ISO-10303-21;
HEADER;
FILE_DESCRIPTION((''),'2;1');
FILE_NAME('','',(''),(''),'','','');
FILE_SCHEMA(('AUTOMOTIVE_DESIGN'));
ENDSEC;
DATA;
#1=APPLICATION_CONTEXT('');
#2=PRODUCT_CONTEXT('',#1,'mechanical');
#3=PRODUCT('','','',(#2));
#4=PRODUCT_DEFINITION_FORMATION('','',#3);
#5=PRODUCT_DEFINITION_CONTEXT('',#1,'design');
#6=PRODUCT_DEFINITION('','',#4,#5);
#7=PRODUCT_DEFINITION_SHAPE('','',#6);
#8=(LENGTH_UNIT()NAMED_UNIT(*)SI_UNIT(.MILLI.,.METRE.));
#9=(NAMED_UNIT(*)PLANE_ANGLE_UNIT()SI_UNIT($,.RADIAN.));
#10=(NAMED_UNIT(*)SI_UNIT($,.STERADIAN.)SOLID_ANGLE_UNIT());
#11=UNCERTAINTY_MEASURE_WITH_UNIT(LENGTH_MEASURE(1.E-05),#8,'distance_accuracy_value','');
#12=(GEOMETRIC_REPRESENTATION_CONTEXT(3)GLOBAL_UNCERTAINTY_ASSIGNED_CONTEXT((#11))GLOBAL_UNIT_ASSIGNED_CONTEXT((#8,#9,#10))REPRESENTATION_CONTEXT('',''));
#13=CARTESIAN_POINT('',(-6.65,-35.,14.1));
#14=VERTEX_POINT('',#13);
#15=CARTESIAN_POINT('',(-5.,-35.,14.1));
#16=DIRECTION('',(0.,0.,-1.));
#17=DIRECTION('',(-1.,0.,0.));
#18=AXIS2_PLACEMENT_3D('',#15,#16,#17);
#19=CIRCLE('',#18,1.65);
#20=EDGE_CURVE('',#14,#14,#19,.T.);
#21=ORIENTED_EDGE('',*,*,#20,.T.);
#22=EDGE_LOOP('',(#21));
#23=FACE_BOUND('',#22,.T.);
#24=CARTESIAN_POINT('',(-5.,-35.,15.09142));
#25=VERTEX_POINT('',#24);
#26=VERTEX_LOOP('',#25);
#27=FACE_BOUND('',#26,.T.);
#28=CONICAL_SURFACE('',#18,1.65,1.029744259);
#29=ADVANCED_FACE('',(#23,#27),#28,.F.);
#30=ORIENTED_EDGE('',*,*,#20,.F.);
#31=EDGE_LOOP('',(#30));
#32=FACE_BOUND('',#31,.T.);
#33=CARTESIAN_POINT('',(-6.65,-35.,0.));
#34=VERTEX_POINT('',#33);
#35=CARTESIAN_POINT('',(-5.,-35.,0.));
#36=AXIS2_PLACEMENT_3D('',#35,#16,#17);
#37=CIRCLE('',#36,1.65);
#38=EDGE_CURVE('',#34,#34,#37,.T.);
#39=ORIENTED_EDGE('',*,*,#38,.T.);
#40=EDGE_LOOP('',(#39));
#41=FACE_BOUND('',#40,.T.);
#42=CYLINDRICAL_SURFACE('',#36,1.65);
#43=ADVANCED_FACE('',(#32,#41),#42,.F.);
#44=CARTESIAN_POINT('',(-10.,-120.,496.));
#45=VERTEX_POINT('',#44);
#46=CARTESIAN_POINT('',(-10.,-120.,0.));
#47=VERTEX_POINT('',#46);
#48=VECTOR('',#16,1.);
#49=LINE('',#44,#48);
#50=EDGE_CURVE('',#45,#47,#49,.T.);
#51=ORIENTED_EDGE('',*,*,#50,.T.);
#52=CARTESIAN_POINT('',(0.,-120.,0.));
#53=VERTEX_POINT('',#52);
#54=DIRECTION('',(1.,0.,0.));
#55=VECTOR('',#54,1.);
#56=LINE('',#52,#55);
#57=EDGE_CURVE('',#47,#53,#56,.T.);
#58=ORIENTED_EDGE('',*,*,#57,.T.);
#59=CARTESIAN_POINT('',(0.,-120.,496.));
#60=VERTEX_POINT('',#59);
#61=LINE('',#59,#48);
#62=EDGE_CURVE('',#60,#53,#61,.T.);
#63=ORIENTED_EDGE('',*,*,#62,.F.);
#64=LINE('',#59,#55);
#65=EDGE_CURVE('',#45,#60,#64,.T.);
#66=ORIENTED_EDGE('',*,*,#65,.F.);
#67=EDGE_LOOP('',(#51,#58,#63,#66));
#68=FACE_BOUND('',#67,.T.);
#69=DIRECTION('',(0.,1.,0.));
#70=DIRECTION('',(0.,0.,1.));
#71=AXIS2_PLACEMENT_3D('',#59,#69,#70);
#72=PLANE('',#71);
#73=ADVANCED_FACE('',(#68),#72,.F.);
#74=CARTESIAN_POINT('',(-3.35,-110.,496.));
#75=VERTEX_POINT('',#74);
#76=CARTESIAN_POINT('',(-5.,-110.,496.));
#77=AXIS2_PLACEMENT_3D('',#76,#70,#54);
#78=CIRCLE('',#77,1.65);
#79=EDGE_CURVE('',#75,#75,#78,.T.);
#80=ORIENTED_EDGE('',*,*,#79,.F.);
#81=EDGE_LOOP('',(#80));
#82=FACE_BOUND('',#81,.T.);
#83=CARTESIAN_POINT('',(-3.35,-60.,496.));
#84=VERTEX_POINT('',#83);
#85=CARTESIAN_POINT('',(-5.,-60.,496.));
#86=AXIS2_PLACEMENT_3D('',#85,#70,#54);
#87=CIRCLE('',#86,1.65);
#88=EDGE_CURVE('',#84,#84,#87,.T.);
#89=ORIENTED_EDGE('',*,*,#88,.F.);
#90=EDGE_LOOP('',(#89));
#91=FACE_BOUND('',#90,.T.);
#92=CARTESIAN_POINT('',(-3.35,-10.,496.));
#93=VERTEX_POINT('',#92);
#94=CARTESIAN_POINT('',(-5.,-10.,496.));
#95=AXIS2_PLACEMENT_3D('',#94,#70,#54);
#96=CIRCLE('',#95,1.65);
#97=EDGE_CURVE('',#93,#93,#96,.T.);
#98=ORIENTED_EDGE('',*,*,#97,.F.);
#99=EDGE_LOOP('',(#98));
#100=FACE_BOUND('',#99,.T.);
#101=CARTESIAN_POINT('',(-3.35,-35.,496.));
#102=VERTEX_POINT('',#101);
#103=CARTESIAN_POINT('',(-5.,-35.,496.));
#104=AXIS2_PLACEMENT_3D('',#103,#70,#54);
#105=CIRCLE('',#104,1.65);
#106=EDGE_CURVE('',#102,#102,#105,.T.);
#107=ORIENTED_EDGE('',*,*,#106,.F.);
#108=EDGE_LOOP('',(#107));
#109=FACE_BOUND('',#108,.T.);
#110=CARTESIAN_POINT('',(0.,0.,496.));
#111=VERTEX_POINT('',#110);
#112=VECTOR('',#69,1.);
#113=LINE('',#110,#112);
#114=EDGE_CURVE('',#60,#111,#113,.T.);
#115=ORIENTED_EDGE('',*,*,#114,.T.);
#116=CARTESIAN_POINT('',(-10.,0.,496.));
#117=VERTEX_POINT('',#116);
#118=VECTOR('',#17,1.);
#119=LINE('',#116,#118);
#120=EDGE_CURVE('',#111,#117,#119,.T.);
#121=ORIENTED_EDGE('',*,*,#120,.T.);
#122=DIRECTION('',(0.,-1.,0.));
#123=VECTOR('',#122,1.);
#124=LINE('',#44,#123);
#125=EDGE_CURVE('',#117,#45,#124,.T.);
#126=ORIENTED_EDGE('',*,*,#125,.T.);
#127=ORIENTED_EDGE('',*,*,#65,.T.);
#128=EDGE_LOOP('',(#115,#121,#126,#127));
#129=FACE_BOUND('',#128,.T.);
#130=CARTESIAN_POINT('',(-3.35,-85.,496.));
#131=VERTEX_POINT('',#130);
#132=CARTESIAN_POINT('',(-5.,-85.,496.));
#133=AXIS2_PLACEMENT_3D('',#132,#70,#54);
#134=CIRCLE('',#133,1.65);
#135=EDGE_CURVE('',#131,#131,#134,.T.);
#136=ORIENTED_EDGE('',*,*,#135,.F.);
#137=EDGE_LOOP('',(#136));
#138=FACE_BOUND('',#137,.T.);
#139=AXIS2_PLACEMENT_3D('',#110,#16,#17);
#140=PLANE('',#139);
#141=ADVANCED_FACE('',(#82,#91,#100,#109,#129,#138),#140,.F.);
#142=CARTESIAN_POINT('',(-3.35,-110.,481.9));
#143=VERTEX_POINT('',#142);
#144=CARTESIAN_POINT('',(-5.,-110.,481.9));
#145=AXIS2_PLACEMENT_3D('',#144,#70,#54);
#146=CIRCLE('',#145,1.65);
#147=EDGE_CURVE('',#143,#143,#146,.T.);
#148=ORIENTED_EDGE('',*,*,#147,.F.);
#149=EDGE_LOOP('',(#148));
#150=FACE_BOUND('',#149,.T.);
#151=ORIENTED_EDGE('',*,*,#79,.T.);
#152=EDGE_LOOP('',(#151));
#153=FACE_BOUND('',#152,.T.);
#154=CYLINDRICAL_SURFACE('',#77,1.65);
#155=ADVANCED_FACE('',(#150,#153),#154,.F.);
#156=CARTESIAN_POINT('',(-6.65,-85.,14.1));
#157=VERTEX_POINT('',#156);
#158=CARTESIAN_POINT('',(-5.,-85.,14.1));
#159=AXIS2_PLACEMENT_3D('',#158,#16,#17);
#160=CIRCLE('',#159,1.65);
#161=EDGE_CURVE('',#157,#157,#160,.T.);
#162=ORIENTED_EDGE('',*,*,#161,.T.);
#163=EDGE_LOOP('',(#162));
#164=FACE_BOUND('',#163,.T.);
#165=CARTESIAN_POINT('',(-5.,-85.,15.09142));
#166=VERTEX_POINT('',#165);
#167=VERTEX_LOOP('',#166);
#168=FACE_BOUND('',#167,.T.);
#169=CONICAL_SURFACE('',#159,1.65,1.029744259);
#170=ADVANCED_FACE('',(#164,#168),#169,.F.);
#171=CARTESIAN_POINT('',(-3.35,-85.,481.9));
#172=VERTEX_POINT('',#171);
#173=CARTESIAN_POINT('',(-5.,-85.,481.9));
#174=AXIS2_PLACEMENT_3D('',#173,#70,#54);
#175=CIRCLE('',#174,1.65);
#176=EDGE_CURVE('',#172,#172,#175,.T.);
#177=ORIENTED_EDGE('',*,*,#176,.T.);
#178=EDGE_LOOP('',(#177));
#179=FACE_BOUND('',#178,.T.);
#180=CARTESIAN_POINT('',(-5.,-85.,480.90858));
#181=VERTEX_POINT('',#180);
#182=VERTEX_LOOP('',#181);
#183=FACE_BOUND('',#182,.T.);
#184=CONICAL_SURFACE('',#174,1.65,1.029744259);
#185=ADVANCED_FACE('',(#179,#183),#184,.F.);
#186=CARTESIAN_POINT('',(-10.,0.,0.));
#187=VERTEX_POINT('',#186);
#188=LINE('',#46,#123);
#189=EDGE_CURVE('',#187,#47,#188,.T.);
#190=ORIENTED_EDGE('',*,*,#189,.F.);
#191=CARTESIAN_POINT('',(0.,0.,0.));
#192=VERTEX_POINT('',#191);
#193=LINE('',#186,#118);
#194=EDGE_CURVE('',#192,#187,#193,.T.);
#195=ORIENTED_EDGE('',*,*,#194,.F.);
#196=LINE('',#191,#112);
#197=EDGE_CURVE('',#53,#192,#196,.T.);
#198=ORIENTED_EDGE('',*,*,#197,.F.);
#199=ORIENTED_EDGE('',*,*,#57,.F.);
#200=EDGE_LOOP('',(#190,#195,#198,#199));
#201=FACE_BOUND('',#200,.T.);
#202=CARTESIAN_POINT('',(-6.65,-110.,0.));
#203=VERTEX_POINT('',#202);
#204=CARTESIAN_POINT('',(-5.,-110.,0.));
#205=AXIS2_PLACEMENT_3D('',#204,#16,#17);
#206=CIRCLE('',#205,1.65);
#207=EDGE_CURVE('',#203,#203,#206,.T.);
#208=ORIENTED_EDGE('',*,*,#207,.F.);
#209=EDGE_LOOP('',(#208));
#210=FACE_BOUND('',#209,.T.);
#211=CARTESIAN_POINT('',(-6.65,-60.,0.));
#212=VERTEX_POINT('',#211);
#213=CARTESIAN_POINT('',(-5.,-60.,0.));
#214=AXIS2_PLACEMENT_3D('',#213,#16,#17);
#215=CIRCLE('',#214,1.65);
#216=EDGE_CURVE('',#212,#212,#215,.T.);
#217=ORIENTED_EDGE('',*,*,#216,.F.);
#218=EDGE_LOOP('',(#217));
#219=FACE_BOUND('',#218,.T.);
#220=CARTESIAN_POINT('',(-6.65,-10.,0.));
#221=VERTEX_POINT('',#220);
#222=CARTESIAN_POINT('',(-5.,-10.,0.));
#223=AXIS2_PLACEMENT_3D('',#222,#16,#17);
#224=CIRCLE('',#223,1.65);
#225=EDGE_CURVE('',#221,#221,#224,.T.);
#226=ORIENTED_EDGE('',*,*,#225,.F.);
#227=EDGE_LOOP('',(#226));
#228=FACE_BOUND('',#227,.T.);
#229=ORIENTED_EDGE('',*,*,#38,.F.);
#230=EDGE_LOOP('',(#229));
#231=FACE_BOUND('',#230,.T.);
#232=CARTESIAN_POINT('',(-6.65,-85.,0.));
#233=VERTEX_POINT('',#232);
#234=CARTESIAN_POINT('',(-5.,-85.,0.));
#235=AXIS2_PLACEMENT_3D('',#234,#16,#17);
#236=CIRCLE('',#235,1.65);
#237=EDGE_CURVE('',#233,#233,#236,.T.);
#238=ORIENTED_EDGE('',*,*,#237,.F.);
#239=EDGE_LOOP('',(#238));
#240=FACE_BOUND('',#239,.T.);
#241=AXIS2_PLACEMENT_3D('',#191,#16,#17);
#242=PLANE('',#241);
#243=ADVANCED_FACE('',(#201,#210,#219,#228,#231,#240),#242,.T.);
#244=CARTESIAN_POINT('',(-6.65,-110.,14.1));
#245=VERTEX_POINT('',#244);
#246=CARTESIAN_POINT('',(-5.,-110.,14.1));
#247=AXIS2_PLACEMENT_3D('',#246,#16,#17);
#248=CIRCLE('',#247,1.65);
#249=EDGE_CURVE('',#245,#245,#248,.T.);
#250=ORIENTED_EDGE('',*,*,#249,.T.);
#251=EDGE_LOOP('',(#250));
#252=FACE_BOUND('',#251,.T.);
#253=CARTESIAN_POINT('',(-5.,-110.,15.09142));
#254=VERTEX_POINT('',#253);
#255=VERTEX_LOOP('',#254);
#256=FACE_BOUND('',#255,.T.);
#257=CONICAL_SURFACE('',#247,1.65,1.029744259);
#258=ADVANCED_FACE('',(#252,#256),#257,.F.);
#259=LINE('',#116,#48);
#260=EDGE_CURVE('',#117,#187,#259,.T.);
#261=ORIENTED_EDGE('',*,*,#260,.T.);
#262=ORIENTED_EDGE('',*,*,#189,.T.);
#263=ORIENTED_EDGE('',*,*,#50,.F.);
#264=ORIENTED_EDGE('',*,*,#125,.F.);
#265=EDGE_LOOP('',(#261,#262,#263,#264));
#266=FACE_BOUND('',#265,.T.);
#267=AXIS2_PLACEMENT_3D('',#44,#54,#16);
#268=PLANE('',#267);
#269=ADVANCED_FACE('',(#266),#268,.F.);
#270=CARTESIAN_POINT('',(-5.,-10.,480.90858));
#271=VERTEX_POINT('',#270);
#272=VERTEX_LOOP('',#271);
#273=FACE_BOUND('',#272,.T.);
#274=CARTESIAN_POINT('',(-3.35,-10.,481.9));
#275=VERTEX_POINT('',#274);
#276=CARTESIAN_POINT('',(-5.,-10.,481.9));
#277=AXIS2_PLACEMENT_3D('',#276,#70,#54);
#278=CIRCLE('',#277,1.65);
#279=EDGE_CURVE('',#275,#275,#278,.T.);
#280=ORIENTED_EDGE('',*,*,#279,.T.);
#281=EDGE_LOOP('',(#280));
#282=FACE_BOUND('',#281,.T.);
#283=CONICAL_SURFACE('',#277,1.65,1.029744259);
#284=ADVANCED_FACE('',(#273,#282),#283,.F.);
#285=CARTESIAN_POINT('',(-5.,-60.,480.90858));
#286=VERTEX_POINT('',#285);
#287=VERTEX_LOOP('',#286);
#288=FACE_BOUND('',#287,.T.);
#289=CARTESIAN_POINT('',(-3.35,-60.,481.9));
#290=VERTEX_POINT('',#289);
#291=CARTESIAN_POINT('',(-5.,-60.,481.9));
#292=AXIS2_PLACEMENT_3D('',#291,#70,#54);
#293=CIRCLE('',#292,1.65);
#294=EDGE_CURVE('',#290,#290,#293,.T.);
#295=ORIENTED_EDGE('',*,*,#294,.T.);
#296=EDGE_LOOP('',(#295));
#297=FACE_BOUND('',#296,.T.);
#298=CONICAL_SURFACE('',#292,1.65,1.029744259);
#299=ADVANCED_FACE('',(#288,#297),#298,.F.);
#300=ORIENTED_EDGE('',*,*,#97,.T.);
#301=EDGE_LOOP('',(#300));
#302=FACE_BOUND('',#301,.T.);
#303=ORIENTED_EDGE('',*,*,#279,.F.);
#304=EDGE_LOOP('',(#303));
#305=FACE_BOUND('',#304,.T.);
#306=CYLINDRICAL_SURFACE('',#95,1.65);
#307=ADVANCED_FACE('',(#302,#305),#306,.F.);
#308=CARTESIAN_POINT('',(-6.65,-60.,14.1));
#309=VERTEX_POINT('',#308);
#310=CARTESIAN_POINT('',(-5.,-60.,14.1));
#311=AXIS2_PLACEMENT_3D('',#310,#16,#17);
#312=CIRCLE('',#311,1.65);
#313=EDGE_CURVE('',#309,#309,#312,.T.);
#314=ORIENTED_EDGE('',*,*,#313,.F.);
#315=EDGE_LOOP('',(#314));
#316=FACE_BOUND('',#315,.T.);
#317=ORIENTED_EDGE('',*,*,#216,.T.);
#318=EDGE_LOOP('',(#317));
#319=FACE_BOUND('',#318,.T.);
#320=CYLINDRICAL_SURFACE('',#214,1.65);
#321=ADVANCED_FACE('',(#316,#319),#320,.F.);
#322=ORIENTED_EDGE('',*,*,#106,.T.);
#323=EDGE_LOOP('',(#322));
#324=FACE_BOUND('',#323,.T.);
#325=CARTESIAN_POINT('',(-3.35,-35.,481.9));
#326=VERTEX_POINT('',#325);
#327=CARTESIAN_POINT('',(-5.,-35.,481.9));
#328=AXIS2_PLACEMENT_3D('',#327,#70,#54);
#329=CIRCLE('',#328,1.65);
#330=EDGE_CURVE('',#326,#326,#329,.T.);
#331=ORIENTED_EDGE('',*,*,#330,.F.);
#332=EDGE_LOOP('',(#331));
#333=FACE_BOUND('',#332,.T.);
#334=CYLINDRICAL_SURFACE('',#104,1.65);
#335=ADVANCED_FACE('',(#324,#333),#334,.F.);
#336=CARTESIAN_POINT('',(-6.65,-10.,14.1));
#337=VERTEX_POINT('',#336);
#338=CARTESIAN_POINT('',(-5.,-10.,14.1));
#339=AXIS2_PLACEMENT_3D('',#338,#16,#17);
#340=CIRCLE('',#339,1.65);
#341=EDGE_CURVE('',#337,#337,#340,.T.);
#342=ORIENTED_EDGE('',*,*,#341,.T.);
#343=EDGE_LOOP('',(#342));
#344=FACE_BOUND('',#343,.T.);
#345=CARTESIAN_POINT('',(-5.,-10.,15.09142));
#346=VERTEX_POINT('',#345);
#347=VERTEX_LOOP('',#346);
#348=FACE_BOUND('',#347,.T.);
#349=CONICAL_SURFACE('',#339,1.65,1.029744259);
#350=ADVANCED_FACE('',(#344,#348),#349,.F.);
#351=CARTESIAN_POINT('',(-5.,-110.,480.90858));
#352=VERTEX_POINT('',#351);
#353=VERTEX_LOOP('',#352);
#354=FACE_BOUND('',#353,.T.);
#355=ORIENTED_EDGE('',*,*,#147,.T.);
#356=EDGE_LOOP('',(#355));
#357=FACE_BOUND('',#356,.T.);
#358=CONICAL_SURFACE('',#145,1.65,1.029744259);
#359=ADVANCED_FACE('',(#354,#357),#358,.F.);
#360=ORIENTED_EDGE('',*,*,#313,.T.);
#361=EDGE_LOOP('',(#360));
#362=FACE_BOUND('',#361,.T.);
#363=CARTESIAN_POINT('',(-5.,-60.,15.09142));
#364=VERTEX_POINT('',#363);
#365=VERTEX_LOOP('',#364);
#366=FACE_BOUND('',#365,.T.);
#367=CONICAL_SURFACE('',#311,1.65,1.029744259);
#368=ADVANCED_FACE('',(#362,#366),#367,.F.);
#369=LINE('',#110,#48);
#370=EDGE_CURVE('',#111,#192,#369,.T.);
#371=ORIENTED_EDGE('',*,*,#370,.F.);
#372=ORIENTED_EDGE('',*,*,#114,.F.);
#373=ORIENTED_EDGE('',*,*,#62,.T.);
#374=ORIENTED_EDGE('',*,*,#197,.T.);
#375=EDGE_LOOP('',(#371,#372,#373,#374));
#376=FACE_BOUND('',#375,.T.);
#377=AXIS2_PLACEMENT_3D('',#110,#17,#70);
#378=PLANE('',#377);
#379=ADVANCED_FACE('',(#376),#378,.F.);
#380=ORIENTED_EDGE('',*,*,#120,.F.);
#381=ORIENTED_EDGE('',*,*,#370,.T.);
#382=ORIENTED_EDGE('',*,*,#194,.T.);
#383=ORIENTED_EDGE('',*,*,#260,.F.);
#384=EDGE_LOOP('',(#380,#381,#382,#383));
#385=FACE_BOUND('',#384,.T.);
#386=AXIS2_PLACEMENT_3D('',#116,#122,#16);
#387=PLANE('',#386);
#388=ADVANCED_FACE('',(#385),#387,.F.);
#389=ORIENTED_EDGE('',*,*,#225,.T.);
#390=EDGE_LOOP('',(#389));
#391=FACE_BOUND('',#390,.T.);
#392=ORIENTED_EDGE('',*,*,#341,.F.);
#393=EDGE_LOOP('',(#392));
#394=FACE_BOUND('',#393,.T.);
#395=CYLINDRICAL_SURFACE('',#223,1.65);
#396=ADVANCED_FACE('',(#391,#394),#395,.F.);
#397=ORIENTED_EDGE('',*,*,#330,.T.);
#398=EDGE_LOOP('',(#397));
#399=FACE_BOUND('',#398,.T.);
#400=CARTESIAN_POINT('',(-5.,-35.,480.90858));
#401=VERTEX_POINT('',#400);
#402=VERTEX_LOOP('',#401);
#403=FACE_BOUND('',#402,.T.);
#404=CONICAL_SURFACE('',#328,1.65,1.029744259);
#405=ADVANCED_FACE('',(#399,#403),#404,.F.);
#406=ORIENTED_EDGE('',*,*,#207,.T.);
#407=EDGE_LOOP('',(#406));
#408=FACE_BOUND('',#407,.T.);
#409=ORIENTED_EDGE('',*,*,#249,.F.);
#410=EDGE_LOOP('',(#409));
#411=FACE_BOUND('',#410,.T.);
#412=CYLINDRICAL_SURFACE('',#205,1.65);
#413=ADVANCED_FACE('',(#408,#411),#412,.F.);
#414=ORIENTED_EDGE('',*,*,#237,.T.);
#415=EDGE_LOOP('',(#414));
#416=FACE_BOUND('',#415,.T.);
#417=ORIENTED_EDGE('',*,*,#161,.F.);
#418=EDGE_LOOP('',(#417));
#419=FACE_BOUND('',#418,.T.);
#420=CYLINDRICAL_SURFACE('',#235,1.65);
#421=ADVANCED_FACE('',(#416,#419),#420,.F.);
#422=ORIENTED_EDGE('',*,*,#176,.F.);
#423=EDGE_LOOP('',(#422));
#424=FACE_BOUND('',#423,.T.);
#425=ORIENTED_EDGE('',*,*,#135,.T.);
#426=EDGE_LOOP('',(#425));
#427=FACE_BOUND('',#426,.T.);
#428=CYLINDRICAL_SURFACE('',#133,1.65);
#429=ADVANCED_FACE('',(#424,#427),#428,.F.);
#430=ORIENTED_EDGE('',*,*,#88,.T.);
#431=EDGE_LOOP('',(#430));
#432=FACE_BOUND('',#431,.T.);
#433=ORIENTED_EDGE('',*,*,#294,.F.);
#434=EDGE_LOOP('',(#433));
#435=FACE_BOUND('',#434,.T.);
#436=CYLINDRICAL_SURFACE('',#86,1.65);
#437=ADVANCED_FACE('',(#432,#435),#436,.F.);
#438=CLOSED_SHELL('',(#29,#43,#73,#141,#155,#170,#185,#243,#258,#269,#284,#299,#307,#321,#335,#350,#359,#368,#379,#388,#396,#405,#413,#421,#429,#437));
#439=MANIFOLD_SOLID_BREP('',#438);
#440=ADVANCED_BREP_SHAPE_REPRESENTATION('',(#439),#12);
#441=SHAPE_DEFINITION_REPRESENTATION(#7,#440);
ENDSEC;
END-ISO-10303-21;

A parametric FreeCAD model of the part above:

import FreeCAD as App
import Part
import Sketcher
Q = App.Units.Quantity


def add_polygon(sketch, points):
    """Adds a closed chain of lines whose ends are joined by coincident constraints."""
    first, n = sketch.GeometryCount, len(points)
    for a, b in zip(points, points[1:] + points[:1]):
        sketch.addGeometry(Part.LineSegment(App.Vector(*a, 0), App.Vector(*b, 0)), False)
    for i in range(n):
        sketch.addConstraint(Sketcher.Constraint("Coincident", first + i, 2, first + (i + 1) % n, 1))

doc = App.newDocument("Part")
body = doc.addObject("PartDesign::Body", "Body")

# Sketch on XY plane
sketch1 = body.newObject("Sketcher::SketchObject", "Sketch")
sketch1.AttachmentSupport = (doc.getObject("XY_Plane"), [""])
sketch1.MapMode = "FlatFace"
add_polygon(sketch1, [(-10, 0), (-10, -120), (0, -120), (0, 0)])  # lines 0-3
sketch1.addConstraint([
    Sketcher.Constraint("Vertical", 0),
    Sketcher.Constraint("Horizontal", 1),
    Sketcher.Constraint("Vertical", 2),
    Sketcher.Constraint("Horizontal", 3),
    Sketcher.Constraint("Coincident", 2, 2, -1, 1),
    Sketcher.Constraint("DistanceX", 1, 1, 1, 2, Q("10 mm")),
    Sketcher.Constraint("DistanceY", 0, 2, 0, 1, Q("120 mm")),
])
pad1 = body.newObject("PartDesign::Pad", "Pad")
pad1.Profile = sketch1
pad1.Length = 496

# Sketch on XY plane
sketch2 = body.newObject("Sketcher::SketchObject", "Sketch001")
sketch2.AttachmentSupport = (doc.getObject("XY_Plane"), [""])
sketch2.MapMode = "FlatFace"
sketch2.AttachmentOffset = App.Placement(App.Vector(0, 0, 496), App.Rotation())
sketch2.addGeometry([
    Part.Circle(App.Vector(-5, -10, 0), App.Vector(0, 0, 1), 1.6),  # 0
    Part.Circle(App.Vector(-5, -35, 0), App.Vector(0, 0, 1), 1.6),  # 1
    Part.Circle(App.Vector(-5, -60, 0), App.Vector(0, 0, 1), 1.6),  # 2
    Part.Circle(App.Vector(-5, -85, 0), App.Vector(0, 0, 1), 1.6),  # 3
    Part.Circle(App.Vector(-5, -110, 0), App.Vector(0, 0, 1), 1.6),  # 4
], False)
sketch2.addConstraint([
    Sketcher.Constraint("Equal", 0, 1),
    Sketcher.Constraint("Equal", 1, 2),
    Sketcher.Constraint("Equal", 2, 3),
    Sketcher.Constraint("Equal", 3, 4),
    Sketcher.Constraint("Vertical", 0, 3, 1, 3),
    Sketcher.Constraint("Vertical", 1, 3, 2, 3),
    Sketcher.Constraint("Vertical", 2, 3, 3, 3),
    Sketcher.Constraint("Vertical", 3, 3, 4, 3),
    Sketcher.Constraint("Diameter", 0, Q("3.3 mm")),
    Sketcher.Constraint("DistanceX", 0, 3, -1, 1, Q("5 mm")),
    Sketcher.Constraint("DistanceY", 0, 3, -1, 1, Q("10 mm")),
    Sketcher.Constraint("DistanceY", 1, 3, -1, 1, Q("35 mm")),
    Sketcher.Constraint("DistanceY", 2, 3, -1, 1, Q("60 mm")),
    Sketcher.Constraint("DistanceY", 3, 3, -1, 1, Q("85 mm")),
    Sketcher.Constraint("DistanceY", 4, 3, -1, 1, Q("110 mm")),
])
doc.recompute()
hole = body.newObject("PartDesign::Hole", "Hole")
hole.Profile = sketch2
hole.ThreadType = "None"
hole.Diameter = 3.3
hole.DepthType = "Dimension"
hole.Depth = 14.1
hole.DrillPoint = "Angled"
hole.DrillPointAngle = 118

# Sketch on XY plane
sketch3 = body.newObject("Sketcher::SketchObject", "Sketch002")
sketch3.AttachmentSupport = (doc.getObject("XY_Plane"), [""])
sketch3.MapMode = "FlatFace"
sketch3.addGeometry([
    Part.Circle(App.Vector(-5, -10, 0), App.Vector(0, 0, 1), 1.6),  # 0
    Part.Circle(App.Vector(-5, -35, 0), App.Vector(0, 0, 1), 1.6),  # 1
    Part.Circle(App.Vector(-5, -60, 0), App.Vector(0, 0, 1), 1.6),  # 2
    Part.Circle(App.Vector(-5, -85, 0), App.Vector(0, 0, 1), 1.6),  # 3
    Part.Circle(App.Vector(-5, -110, 0), App.Vector(0, 0, 1), 1.6),  # 4
], False)
sketch3.addConstraint([
    Sketcher.Constraint("Equal", 0, 1),
    Sketcher.Constraint("Equal", 1, 2),
    Sketcher.Constraint("Equal", 2, 3),
    Sketcher.Constraint("Equal", 3, 4),
    Sketcher.Constraint("Vertical", 0, 3, 1, 3),
    Sketcher.Constraint("Vertical", 1, 3, 2, 3),
    Sketcher.Constraint("Vertical", 2, 3, 3, 3),
    Sketcher.Constraint("Vertical", 3, 3, 4, 3),
    Sketcher.Constraint("Diameter", 0, Q("3.3 mm")),
    Sketcher.Constraint("DistanceX", 0, 3, -1, 1, Q("5 mm")),
    Sketcher.Constraint("DistanceY", 0, 3, -1, 1, Q("10 mm")),
    Sketcher.Constraint("DistanceY", 1, 3, -1, 1, Q("35 mm")),
    Sketcher.Constraint("DistanceY", 2, 3, -1, 1, Q("60 mm")),
    Sketcher.Constraint("DistanceY", 3, 3, -1, 1, Q("85 mm")),
    Sketcher.Constraint("DistanceY", 4, 3, -1, 1, Q("110 mm")),
])
doc.recompute()
hole2 = body.newObject("PartDesign::Hole", "Hole001")
hole2.Profile = sketch3
hole2.ThreadType = "None"
hole2.Diameter = 3.3
hole2.DepthType = "Dimension"
hole2.Depth = 14.1
hole2.DrillPoint = "Angled"
hole2.DrillPointAngle = 118
hole2.Reversed = True

doc.recompute()
